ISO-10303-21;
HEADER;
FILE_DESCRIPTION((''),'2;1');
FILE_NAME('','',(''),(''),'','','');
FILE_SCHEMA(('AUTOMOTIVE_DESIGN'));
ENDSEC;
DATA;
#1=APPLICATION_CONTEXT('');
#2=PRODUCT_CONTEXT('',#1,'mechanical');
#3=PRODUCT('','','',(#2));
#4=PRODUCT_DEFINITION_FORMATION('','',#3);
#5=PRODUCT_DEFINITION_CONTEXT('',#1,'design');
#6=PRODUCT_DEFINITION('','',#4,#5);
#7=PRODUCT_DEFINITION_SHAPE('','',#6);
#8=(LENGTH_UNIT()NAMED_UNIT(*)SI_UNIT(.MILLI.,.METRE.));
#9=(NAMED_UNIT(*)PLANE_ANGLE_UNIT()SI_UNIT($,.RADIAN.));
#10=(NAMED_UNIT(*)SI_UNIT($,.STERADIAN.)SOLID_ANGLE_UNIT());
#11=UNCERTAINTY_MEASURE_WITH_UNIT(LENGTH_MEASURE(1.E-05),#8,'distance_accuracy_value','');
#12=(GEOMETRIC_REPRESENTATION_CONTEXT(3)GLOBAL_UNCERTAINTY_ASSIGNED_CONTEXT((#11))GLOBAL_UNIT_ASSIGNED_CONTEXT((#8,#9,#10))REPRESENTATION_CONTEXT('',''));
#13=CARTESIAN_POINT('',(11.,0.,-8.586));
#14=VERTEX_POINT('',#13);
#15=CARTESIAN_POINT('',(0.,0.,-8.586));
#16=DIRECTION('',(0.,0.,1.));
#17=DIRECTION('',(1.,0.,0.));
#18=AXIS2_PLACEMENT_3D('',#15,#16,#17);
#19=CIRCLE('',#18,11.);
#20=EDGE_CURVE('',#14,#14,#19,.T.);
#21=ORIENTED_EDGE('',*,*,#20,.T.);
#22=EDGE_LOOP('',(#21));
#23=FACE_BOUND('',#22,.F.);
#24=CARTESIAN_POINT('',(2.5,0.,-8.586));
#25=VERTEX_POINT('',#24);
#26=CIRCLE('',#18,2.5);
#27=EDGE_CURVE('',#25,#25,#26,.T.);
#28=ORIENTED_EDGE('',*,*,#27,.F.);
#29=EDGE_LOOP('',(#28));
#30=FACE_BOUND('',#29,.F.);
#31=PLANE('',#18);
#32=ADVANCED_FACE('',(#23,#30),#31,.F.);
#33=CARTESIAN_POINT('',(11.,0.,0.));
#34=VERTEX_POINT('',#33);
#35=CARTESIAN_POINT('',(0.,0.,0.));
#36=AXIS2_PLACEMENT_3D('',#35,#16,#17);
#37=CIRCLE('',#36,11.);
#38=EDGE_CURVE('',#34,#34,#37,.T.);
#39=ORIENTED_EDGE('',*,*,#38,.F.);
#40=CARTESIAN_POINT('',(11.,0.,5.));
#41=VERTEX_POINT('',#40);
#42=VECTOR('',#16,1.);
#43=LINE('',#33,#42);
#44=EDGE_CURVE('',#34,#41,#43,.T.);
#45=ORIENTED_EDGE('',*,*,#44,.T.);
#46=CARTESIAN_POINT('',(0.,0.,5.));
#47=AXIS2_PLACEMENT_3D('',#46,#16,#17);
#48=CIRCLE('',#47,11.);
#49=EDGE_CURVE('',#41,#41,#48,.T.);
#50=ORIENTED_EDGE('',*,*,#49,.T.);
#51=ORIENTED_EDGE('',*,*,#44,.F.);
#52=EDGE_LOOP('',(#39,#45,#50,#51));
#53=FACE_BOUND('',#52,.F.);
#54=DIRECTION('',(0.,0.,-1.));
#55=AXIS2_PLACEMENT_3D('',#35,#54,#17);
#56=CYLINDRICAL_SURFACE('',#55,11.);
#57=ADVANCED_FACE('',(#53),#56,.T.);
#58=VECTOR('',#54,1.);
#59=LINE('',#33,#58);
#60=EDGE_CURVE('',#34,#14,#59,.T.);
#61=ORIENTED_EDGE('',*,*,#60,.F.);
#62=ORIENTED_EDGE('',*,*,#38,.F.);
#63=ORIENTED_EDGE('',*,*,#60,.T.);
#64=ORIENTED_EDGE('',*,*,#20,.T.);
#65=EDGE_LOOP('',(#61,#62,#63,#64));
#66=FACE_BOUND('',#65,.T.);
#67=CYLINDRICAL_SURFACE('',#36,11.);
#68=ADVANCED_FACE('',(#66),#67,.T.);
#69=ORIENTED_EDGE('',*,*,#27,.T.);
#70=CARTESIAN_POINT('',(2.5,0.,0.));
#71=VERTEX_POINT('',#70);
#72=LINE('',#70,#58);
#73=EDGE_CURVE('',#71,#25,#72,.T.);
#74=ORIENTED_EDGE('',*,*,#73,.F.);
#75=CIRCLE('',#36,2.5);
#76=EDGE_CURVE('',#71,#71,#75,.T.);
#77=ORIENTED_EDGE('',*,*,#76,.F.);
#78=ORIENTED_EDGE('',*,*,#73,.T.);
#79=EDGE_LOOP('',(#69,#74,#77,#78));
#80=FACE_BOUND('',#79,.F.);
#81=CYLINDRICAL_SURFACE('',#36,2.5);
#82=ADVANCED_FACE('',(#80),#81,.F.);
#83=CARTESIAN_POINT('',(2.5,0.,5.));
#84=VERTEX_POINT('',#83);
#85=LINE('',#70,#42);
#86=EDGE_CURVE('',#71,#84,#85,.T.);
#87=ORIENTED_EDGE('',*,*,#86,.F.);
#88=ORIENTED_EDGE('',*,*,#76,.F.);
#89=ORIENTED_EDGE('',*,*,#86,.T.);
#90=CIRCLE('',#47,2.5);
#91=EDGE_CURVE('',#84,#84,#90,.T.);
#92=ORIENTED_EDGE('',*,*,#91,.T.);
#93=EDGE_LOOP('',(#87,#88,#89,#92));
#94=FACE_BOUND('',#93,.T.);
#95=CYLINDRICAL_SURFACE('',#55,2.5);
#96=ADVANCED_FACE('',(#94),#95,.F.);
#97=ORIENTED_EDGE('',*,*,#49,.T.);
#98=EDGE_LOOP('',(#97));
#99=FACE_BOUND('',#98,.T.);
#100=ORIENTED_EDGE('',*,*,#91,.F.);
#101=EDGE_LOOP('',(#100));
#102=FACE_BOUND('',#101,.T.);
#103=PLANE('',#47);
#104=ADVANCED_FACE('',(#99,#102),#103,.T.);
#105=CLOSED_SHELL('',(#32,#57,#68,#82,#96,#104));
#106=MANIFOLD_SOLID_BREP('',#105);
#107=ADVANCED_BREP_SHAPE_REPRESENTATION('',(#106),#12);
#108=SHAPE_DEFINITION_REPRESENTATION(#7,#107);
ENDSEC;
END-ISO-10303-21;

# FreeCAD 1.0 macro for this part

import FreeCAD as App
import Part
import Sketcher

doc = App.newDocument("Part")
body = doc.addObject("PartDesign::Body", "Body")

# Sketch on XY plane
sketch1 = body.newObject("Sketcher::SketchObject", "Sketch")
sketch1.AttachmentSupport = (doc.getObject("XY_Plane"), [""])
sketch1.MapMode = "FlatFace"
sketch1.addGeometry([
    Part.Circle(App.Vector(0, 0, 0), App.Vector(0, 0, 1), 11),
    Part.Circle(App.Vector(0, 0, 0), App.Vector(0, 0, 1), 2.5),
], False)
sketch1.addConstraint([
    Sketcher.Constraint("Coincident", 0, 3, -1, 1),
    Sketcher.Constraint("Coincident", 1, 3, -1, 1),
    Sketcher.Constraint("Diameter", 0, 22.0),
    Sketcher.Constraint("Diameter", 1, 5.0),
])
pad1 = body.newObject("PartDesign::Pad", "Pad")
pad1.Profile = sketch1
pad1.Type = "TwoLengths"
pad1.Length = 5
pad1.Length2 = 8.586

doc.recompute()
